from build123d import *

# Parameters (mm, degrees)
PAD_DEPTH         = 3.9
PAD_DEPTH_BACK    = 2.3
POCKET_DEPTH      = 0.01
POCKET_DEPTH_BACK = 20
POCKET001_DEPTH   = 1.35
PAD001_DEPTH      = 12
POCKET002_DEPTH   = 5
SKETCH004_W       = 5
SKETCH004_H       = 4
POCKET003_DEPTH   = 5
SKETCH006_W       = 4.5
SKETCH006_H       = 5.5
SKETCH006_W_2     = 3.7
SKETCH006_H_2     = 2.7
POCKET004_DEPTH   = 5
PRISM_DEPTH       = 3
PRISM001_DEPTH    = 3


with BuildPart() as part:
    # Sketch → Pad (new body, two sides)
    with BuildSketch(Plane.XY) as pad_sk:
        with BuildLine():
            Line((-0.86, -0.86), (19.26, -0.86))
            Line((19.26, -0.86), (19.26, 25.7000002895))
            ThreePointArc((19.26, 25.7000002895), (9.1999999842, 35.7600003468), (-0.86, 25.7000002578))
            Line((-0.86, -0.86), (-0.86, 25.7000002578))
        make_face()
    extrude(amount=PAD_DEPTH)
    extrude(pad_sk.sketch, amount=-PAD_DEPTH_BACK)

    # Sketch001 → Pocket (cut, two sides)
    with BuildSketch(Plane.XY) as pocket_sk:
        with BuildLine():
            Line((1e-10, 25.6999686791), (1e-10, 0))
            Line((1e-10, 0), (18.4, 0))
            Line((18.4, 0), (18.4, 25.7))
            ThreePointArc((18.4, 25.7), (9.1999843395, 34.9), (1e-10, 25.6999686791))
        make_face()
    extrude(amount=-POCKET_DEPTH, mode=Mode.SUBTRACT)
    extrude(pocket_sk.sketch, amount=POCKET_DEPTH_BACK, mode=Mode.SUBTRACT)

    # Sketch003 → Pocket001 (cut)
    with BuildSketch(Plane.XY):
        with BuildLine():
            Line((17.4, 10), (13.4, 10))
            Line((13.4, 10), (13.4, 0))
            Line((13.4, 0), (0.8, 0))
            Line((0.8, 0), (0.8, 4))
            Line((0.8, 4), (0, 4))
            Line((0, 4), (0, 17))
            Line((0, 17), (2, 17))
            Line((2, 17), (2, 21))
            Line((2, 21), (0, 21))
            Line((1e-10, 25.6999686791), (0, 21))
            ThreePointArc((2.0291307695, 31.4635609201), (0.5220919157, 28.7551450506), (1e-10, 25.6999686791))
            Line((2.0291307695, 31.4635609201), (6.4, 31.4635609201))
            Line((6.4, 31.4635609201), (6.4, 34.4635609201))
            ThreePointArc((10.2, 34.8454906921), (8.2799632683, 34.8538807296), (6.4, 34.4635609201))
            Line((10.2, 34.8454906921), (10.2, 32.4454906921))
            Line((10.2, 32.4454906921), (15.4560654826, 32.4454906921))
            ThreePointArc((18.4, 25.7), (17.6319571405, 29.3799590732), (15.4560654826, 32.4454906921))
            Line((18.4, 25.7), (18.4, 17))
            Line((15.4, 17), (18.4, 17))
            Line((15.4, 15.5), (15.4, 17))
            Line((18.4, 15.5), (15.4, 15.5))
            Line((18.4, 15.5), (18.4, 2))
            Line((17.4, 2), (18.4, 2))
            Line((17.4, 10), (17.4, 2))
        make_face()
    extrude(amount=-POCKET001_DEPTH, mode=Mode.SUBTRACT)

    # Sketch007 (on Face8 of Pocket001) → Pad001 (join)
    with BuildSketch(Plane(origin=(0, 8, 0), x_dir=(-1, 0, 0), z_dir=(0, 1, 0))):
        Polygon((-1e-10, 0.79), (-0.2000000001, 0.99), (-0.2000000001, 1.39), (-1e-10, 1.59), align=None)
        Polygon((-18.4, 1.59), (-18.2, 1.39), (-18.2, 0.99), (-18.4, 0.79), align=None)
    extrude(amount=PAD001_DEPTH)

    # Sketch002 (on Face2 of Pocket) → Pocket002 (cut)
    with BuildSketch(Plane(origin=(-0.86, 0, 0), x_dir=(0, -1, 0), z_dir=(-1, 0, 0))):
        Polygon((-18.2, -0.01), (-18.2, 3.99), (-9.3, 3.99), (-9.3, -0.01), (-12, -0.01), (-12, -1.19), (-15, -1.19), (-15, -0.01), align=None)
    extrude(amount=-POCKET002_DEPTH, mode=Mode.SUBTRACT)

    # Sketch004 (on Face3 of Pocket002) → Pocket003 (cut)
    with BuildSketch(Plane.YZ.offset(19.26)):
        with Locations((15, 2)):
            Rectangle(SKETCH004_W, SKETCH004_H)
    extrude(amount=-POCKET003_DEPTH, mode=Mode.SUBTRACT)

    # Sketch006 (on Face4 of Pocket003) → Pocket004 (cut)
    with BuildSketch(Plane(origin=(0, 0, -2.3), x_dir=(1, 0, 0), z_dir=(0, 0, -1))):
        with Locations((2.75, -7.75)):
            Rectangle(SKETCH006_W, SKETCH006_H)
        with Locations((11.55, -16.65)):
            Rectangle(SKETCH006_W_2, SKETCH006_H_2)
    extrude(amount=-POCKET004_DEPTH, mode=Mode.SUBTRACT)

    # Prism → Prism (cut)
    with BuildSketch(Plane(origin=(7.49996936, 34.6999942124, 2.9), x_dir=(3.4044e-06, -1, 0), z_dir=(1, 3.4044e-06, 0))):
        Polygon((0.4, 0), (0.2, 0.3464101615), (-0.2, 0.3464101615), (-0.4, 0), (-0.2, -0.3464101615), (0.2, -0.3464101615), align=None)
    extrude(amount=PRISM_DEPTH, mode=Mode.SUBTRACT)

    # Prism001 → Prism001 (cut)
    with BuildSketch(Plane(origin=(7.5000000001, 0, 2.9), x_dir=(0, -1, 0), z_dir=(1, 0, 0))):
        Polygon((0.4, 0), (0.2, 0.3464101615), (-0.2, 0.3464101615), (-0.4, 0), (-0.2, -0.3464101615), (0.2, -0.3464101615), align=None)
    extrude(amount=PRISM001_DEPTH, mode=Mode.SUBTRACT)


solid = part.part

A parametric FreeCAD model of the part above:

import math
import FreeCAD as App
import Part
import Sketcher

V = App.Vector
Q = App.Units.Quantity

doc = App.newDocument("Part")
body = doc.addObject("PartDesign::Body", "Body")

sketch1 = body.newObject("Sketcher::SketchObject", "Sketch")
sketch1.AttachmentSupport = (doc.getObject("XY_Plane"), [""])
sketch1.MapMode = "FlatFace"
sketch1.addGeometry(Part.LineSegment(V(-0.86, -0.86, 0), V(19.26, -0.86, 0)), False)
sketch1.addGeometry(Part.LineSegment(V(19.26, -0.86, 0), V(19.26, 25.7, 0)), False)
sketch1.addGeometry(Part.ArcOfCircle(Part.Circle(V(9.2, 25.7, 0), V(0, 0, 1), 10.06), math.radians(0), math.radians(180.000001)), False)
sketch1.addGeometry(Part.LineSegment(V(-0.86, 25.7, 0), V(-0.86, -0.86, 0)), False)
sketch1.addConstraint(Sketcher.Constraint("Coincident", 0, 2, 1, 1))
sketch1.addConstraint(Sketcher.Constraint("Tangent", 1, 2, 2, 1))
sketch1.addConstraint(Sketcher.Constraint("Tangent", 2, 2, 3, 1))
sketch1.addConstraint(Sketcher.Constraint("Coincident", 3, 2, 0, 1))
sketch1.addConstraint(Sketcher.Constraint("Horizontal", 0))
sketch1.addConstraint(Sketcher.Constraint("Vertical", 1))
sketch1.addConstraint(Sketcher.Constraint("Vertical", 3))
sketch1.addConstraint(Sketcher.Constraint("Radius", 2, Q("10.06 mm")))
sketch1.addConstraint(Sketcher.Constraint("DistanceY", 1, 1, 1, 2, Q("26.56 mm")))
sketch1.addConstraint(Sketcher.Constraint("DistanceX", -1, 1, 2, 3, Q("9.2 mm")))
sketch1.addConstraint(Sketcher.Constraint("DistanceY", -1, 1, 2, 3, Q("25.7 mm")))
pad1 = body.newObject("PartDesign::Pad", "Pad")
pad1.Profile = sketch1
pad1.Type = "TwoLengths"
pad1.Length = 3.9
pad1.Length2 = 2.3

sketch2 = body.newObject("Sketcher::SketchObject", "Sketch001")
sketch2.AttachmentSupport = (doc.getObject("XY_Plane"), [""])
sketch2.MapMode = "FlatFace"
sketch2.addGeometry(Part.LineSegment(V(0, 25.699969, 0), V(0, 0, 0)), False)
sketch2.addGeometry(Part.LineSegment(V(0, 0, 0), V(18.4, 0, 0)), False)
sketch2.addGeometry(Part.LineSegment(V(18.4, 0, 0), V(18.4, 25.7, 0)), False)
sketch2.addGeometry(Part.ArcOfCircle(Part.Circle(V(9.2, 25.7, 0), V(0, 0, 1), 9.2), math.radians(0), math.radians(180.000195)), False)
sketch2.addConstraint(Sketcher.Constraint("Coincident", 0, 2, 1, 1))
sketch2.addConstraint(Sketcher.Constraint("Coincident", 1, 2, 2, 1))
sketch2.addConstraint(Sketcher.Constraint("Tangent", 2, 2, 3, 1))
sketch2.addConstraint(Sketcher.Constraint("Coincident", 3, 2, 0, 1))
sketch2.addConstraint(Sketcher.Constraint("Vertical", 0))
sketch2.addConstraint(Sketcher.Constraint("Horizontal", 1))
sketch2.addConstraint(Sketcher.Constraint("Vertical", 2))
sketch2.addConstraint(Sketcher.Constraint("Coincident", 0, 2, -1, 1))
sketch2.addConstraint(Sketcher.Constraint("Radius", 3, Q("9.2 mm")))
sketch2.addConstraint(Sketcher.Constraint("DistanceY", 2, 1, 2, 2, Q("25.7 mm")))
sketch2.addConstraint(Sketcher.Constraint("DistanceY", 0, 2, 0, 1, Q("25.699969 mm")))
pocket1 = body.newObject("PartDesign::Pocket", "Pocket")
pocket1.Profile = sketch2
pocket1.Type = "TwoLengths"
pocket1.Length = 0.01
pocket1.Length2 = 20

sketch3 = body.newObject("Sketcher::SketchObject", "Sketch002")
sketch3.AttachmentSupport = (doc.getObject("XY_Plane"), [""])
sketch3.MapMode = "FlatFace"
sketch3.addGeometry(Part.LineSegment(V(13.4, 10, 0), V(17.4, 10, 0)), False)
sketch3.addGeometry(Part.LineSegment(V(17.4, 10, 0), V(17.4, 2, 0)), False)
sketch3.addGeometry(Part.LineSegment(V(17.4, 2, 0), V(18.4, 2, 0)), False)
sketch3.addGeometry(Part.LineSegment(V(18.4, 2, 0), V(18.4, 15.5, 0)), False)
sketch3.addGeometry(Part.LineSegment(V(18.4, 15.5, 0), V(15.4, 15.5, 0)), False)
sketch3.addGeometry(Part.LineSegment(V(15.4, 15.5, 0), V(15.4, 17, 0)), False)
sketch3.addGeometry(Part.LineSegment(V(15.4, 17, 0), V(18.4, 17, 0)), False)
sketch3.addGeometry(Part.LineSegment(V(18.4, 17, 0), V(18.4, 25.7, 0)), False)
sketch3.addGeometry(Part.ArcOfCircle(Part.Circle(V(9.2, 25.7, 0), V(0, 0, 1), 9.2), math.radians(0), math.radians(47.155801)), False)
sketch3.addGeometry(Part.LineSegment(V(15.456065, 32.445491, 0), V(10.2, 32.445491, 0)), False)
sketch3.addGeometry(Part.LineSegment(V(10.2, 32.445491, 0), V(10.2, 34.845491, 0)), False)
sketch3.addGeometry(Part.ArcOfCircle(Part.Circle(V(9.2, 25.7, 0), V(0, 0, 1), 9.2), math.radians(83.759869), math.radians(107.718932)), False)
sketch3.addGeometry(Part.LineSegment(V(6.4, 34.463561, 0), V(6.4, 31.463561, 0)), False)
sketch3.addGeometry(Part.LineSegment(V(6.4, 31.463561, 0), V(2.029131, 31.463561, 0)), False)
sketch3.addGeometry(Part.ArcOfCircle(Part.Circle(V(9.2, 25.7, 0), V(0, 0, 1), 9.2), math.radians(141.209542), math.radians(180.000195)), False)
sketch3.addGeometry(Part.LineSegment(V(0, 25.699969, 0), V(0, 21, 0)), False)
sketch3.addGeometry(Part.LineSegment(V(0, 21, 0), V(2, 21, 0)), False)
sketch3.addGeometry(Part.LineSegment(V(2, 21, 0), V(2, 17, 0)), False)
sketch3.addGeometry(Part.LineSegment(V(2, 17, 0), V(0, 17, 0)), False)
sketch3.addGeometry(Part.LineSegment(V(0, 17, 0), V(0, 4, 0)), False)
sketch3.addGeometry(Part.LineSegment(V(0, 4, 0), V(0.8, 4, 0)), False)
sketch3.addGeometry(Part.LineSegment(V(0.8, 4, 0), V(0.8, 0, 0)), False)
sketch3.addGeometry(Part.LineSegment(V(0.8, 0, 0), V(13.4, 0, 0)), False)
sketch3.addGeometry(Part.LineSegment(V(13.4, 0, 0), V(13.4, 10, 0)), False)
sketch3.addConstraint(Sketcher.Constraint("Coincident", 0, 2, 1, 1))
sketch3.addConstraint(Sketcher.Constraint("Coincident", 1, 2, 2, 1))
sketch3.addConstraint(Sketcher.Constraint("Coincident", 2, 2, 3, 1))
sketch3.addConstraint(Sketcher.Constraint("Coincident", 3, 2, 4, 1))
sketch3.addConstraint(Sketcher.Constraint("Coincident", 4, 2, 5, 1))
sketch3.addConstraint(Sketcher.Constraint("Coincident", 5, 2, 6, 1))
sketch3.addConstraint(Sketcher.Constraint("Coincident", 6, 2, 7, 1))
sketch3.addConstraint(Sketcher.Constraint("Tangent", 7, 2, 8, 1))
sketch3.addConstraint(Sketcher.Constraint("Coincident", 8, 2, 9, 1))
sketch3.addConstraint(Sketcher.Constraint("Coincident", 9, 2, 10, 1))
sketch3.addConstraint(Sketcher.Constraint("Coincident", 10, 2, 11, 1))
sketch3.addConstraint(Sketcher.Constraint("Coincident", 11, 2, 12, 1))
sketch3.addConstraint(Sketcher.Constraint("Coincident", 12, 2, 13, 1))
sketch3.addConstraint(Sketcher.Constraint("Coincident", 13, 2, 14, 1))
sketch3.addConstraint(Sketcher.Constraint("Coincident", 14, 2, 15, 1))
sketch3.addConstraint(Sketcher.Constraint("Coincident", 15, 2, 16, 1))
sketch3.addConstraint(Sketcher.Constraint("Coincident", 16, 2, 17, 1))
sketch3.addConstraint(Sketcher.Constraint("Coincident", 17, 2, 18, 1))
sketch3.addConstraint(Sketcher.Constraint("Coincident", 18, 2, 19, 1))
sketch3.addConstraint(Sketcher.Constraint("Coincident", 19, 2, 20, 1))
sketch3.addConstraint(Sketcher.Constraint("Coincident", 20, 2, 21, 1))
sketch3.addConstraint(Sketcher.Constraint("Coincident", 21, 2, 22, 1))
sketch3.addConstraint(Sketcher.Constraint("Coincident", 22, 2, 23, 1))
sketch3.addConstraint(Sketcher.Constraint("Coincident", 23, 2, 0, 1))
sketch3.addConstraint(Sketcher.Constraint("Horizontal", 0))
sketch3.addConstraint(Sketcher.Constraint("Vertical", 1))
sketch3.addConstraint(Sketcher.Constraint("Horizontal", 2))
sketch3.addConstraint(Sketcher.Constraint("Vertical", 3))
sketch3.addConstraint(Sketcher.Constraint("Horizontal", 4))
sketch3.addConstraint(Sketcher.Constraint("Vertical", 5))
sketch3.addConstraint(Sketcher.Constraint("Horizontal", 6))
sketch3.addConstraint(Sketcher.Constraint("Vertical", 7))
sketch3.addConstraint(Sketcher.Constraint("Horizontal", 9))
sketch3.addConstraint(Sketcher.Constraint("Vertical", 10))
sketch3.addConstraint(Sketcher.Constraint("Vertical", 12))
sketch3.addConstraint(Sketcher.Constraint("Horizontal", 13))
sketch3.addConstraint(Sketcher.Constraint("Vertical", 15))
sketch3.addConstraint(Sketcher.Constraint("Horizontal", 16))
sketch3.addConstraint(Sketcher.Constraint("Vertical", 17))
sketch3.addConstraint(Sketcher.Constraint("Horizontal", 18))
sketch3.addConstraint(Sketcher.Constraint("Vertical", 19))
sketch3.addConstraint(Sketcher.Constraint("Horizontal", 20))
sketch3.addConstraint(Sketcher.Constraint("Vertical", 21))
sketch3.addConstraint(Sketcher.Constraint("Horizontal", 22))
sketch3.addConstraint(Sketcher.Constraint("Vertical", 23))
sketch3.addConstraint(Sketcher.Constraint("Coincident", 11, 3, 8, 3))
sketch3.addConstraint(Sketcher.Constraint("Coincident", 14, 3, 8, 3))
sketch3.addConstraint(Sketcher.Constraint("Equal", 8, 11))
sketch3.addConstraint(Sketcher.Constraint("Equal", 11, 14))
sketch3.addConstraint(Sketcher.Constraint("PointOnObject", 14, 2, -2))
sketch3.addConstraint(Sketcher.Constraint("PointOnObject", 18, 2, -2))
sketch3.addConstraint(Sketcher.Constraint("PointOnObject", 21, 2, -1))
sketch3.addConstraint(Sketcher.Constraint("Horizontal", 6, 2, 17, 2))
sketch3.addConstraint(Sketcher.Constraint("Vertical", 3, 2, 6, 2))
sketch3.addConstraint(Sketcher.Constraint("Equal", 6, 12))
sketch3.addConstraint(Sketcher.Constraint("Equal", 0, 17))
sketch3.addConstraint(Sketcher.Constraint("Equal", 17, 21))
sketch3.addConstraint(Sketcher.Constraint("Radius", 8, Q("9.2 mm")))
sketch3.addConstraint(Sketcher.Constraint("DistanceX", 0, 1, 0, 2, Q("4 mm")))
sketch3.addConstraint(Sketcher.Constraint("DistanceX", 2, 1, 2, 2, Q("1 mm")))
sketch3.addConstraint(Sketcher.Constraint("DistanceX", 4, 2, 4, 1, Q("3 mm")))
sketch3.addConstraint(Sketcher.Constraint("DistanceX", 16, 1, 16, 2, Q("2 mm")))
sketch3.addConstraint(Sketcher.Constraint("DistanceY", 1, 2, 1, 1, Q("8 mm")))
sketch3.addConstraint(Sketcher.Constraint("DistanceY", 19, 2, 19, 1, Q("13 mm")))
sketch3.addConstraint(Sketcher.Constraint("DistanceY", 23, 1, 23, 2, Q("10 mm")))
sketch3.addConstraint(Sketcher.Constraint("DistanceX", 20, 1, 20, 2, Q("0.8 mm")))
sketch3.addConstraint(Sketcher.Constraint("DistanceY", 3, 1, 3, 2, Q("13.5 mm")))
sketch3.addConstraint(Sketcher.Constraint("DistanceY", 7, 1, 7, 2, Q("8.7 mm")))
sketch3.addConstraint(Sketcher.Constraint("DistanceY", 10, 1, 10, 2, Q("2.4 mm")))
sketch3.addConstraint(Sketcher.Constraint("DistanceX", 8, 3, 9, 2, Q("1 mm")))
sketch3.addConstraint(Sketcher.Constraint("DistanceX", -1, 1, 11, 2, Q("6.4 mm")))
sketch3.addConstraint(Sketcher.Constraint("DistanceY", 15, 2, 15, 1, Q("4.699969 mm")))
pocket2 = body.newObject("PartDesign::Pocket", "Pocket001")
pocket2.Profile = sketch3
pocket2.Length = 1.35

sketch4 = body.newObject("Sketcher::SketchObject", "Sketch003")
sketch4.AttachmentSupport = (doc.getObject("XZ_Plane"), [""])
sketch4.MapMode = "FlatFace"
sketch4.AttachmentOffset = App.Placement(V(0, 0, -8), App.Rotation())
sketch4.addGeometry(Part.LineSegment(V(0.2, 0.99, 0), V(0, 0.79, 0)), False)
sketch4.addGeometry(Part.LineSegment(V(0, 0.79, 0), V(0, 1.59, 0)), False)
sketch4.addGeometry(Part.LineSegment(V(0, 1.59, 0), V(0.2, 1.39, 0)), False)
sketch4.addGeometry(Part.LineSegment(V(0.2, 1.39, 0), V(0.2, 0.99, 0)), False)
sketch4.addGeometry(Part.LineSegment(V(18.2, 1.39, 0), V(18.4, 1.59, 0)), False)
sketch4.addGeometry(Part.LineSegment(V(18.4, 1.59, 0), V(18.4, 0.79, 0)), False)
sketch4.addGeometry(Part.LineSegment(V(18.4, 0.79, 0), V(18.2, 0.99, 0)), False)
sketch4.addGeometry(Part.LineSegment(V(18.2, 0.99, 0), V(18.2, 1.39, 0)), False)
sketch4.addConstraint(Sketcher.Constraint("Coincident", 0, 2, 1, 1))
sketch4.addConstraint(Sketcher.Constraint("Coincident", 1, 2, 2, 1))
sketch4.addConstraint(Sketcher.Constraint("Coincident", 2, 2, 3, 1))
sketch4.addConstraint(Sketcher.Constraint("Coincident", 3, 2, 0, 1))
sketch4.addConstraint(Sketcher.Constraint("Coincident", 4, 2, 5, 1))
sketch4.addConstraint(Sketcher.Constraint("Coincident", 5, 2, 6, 1))
sketch4.addConstraint(Sketcher.Constraint("Coincident", 6, 2, 7, 1))
sketch4.addConstraint(Sketcher.Constraint("Coincident", 7, 2, 4, 1))
sketch4.addConstraint(Sketcher.Constraint("Vertical", 1))
sketch4.addConstraint(Sketcher.Constraint("Vertical", 3))
sketch4.addConstraint(Sketcher.Constraint("Vertical", 5))
sketch4.addConstraint(Sketcher.Constraint("Vertical", 7))
sketch4.addConstraint(Sketcher.Constraint("PointOnObject", 0, 2, -2))
sketch4.addConstraint(Sketcher.Constraint("Perpendicular", 0, 2))
sketch4.addConstraint(Sketcher.Constraint("Perpendicular", 2, 4))
sketch4.addConstraint(Sketcher.Constraint("Perpendicular", 4, 6))
sketch4.addConstraint(Sketcher.Constraint("Horizontal", 1, 2, 4, 2))
sketch4.addConstraint(Sketcher.Constraint("Horizontal", 0, 2, 5, 2))
sketch4.addConstraint(Sketcher.Constraint("Horizontal", 3, 2, 6, 2))
sketch4.addConstraint(Sketcher.Constraint("Horizontal", 2, 2, 7, 2))
sketch4.addConstraint(Sketcher.Constraint("DistanceY", 1, 1, 1, 2, Q("0.8 mm")))
sketch4.addConstraint(Sketcher.Constraint("DistanceY", 3, 2, 3, 1, Q("0.4 mm")))
sketch4.addConstraint(Sketcher.Constraint("DistanceX", 3, 2, 6, 2, Q("18 mm")))
sketch4.addConstraint(Sketcher.Constraint("DistanceY", -1, 1, 0, 2, Q("0.79 mm")))
pad2 = body.newObject("PartDesign::Pad", "Pad001")
pad2.Profile = sketch4
pad2.Length = 12
pad2.Reversed = True

sketch5 = body.newObject("Sketcher::SketchObject", "Sketch004")
sketch5.AttachmentSupport = (doc.getObject("YZ_Plane"), [""])
sketch5.MapMode = "FlatFace"
sketch5.AttachmentOffset = App.Placement(V(0, 0, -0.86), App.Rotation())
sketch5.addGeometry(Part.LineSegment(V(18.2, 3.99, 0), V(18.2, -0.01, 0)), False)
sketch5.addGeometry(Part.LineSegment(V(18.2, -0.01, 0), V(15, -0.01, 0)), False)
sketch5.addGeometry(Part.LineSegment(V(15, -0.01, 0), V(15, -1.19, 0)), False)
sketch5.addGeometry(Part.LineSegment(V(15, -1.19, 0), V(12, -1.19, 0)), False)
sketch5.addGeometry(Part.LineSegment(V(12, -1.19, 0), V(12, -0.01, 0)), False)
sketch5.addGeometry(Part.LineSegment(V(12, -0.01, 0), V(9.3, -0.01, 0)), False)
sketch5.addGeometry(Part.LineSegment(V(9.3, -0.01, 0), V(9.3, 3.99, 0)), False)
sketch5.addGeometry(Part.LineSegment(V(9.3, 3.99, 0), V(18.2, 3.99, 0)), False)
sketch5.addConstraint(Sketcher.Constraint("Coincident", 0, 2, 1, 1))
sketch5.addConstraint(Sketcher.Constraint("Coincident", 1, 2, 2, 1))
sketch5.addConstraint(Sketcher.Constraint("Coincident", 2, 2, 3, 1))
sketch5.addConstraint(Sketcher.Constraint("Coincident", 3, 2, 4, 1))
sketch5.addConstraint(Sketcher.Constraint("Coincident", 4, 2, 5, 1))
sketch5.addConstraint(Sketcher.Constraint("Coincident", 5, 2, 6, 1))
sketch5.addConstraint(Sketcher.Constraint("Coincident", 6, 2, 7, 1))
sketch5.addConstraint(Sketcher.Constraint("Coincident", 7, 2, 0, 1))
sketch5.addConstraint(Sketcher.Constraint("Vertical", 0))
sketch5.addConstraint(Sketcher.Constraint("Horizontal", 1))
sketch5.addConstraint(Sketcher.Constraint("Vertical", 2))
sketch5.addConstraint(Sketcher.Constraint("Horizontal", 3))
sketch5.addConstraint(Sketcher.Constraint("Vertical", 4))
sketch5.addConstraint(Sketcher.Constraint("Horizontal", 5))
sketch5.addConstraint(Sketcher.Constraint("Vertical", 6))
sketch5.addConstraint(Sketcher.Constraint("Horizontal", 7))
sketch5.addConstraint(Sketcher.Constraint("Horizontal", 1, 2, 4, 2))
sketch5.addConstraint(Sketcher.Constraint("DistanceX", 3, 2, 3, 1, Q("3 mm")))
sketch5.addConstraint(Sketcher.Constraint("DistanceY", 0, 2, 0, 1, Q("4 mm")))
sketch5.addConstraint(Sketcher.Constraint("DistanceX", 1, 2, 1, 1, Q("3.2 mm")))
sketch5.addConstraint(Sketcher.Constraint("DistanceX", 5, 2, 5, 1, Q("2.7 mm")))
sketch5.addConstraint(Sketcher.Constraint("DistanceX", -1, 1, 1, 2, Q("15 mm")))
sketch5.addConstraint(Sketcher.Constraint("DistanceY", 2, 2, 2, 1, Q("1.18 mm")))
sketch5.addConstraint(Sketcher.Constraint("DistanceY", 0, 2, -1, 1, Q("0.01 mm")))
pocket3 = body.newObject("PartDesign::Pocket", "Pocket002")
pocket3.Profile = sketch5
pocket3.Length = 5
pocket3.Reversed = True

sketch6 = body.newObject("Sketcher::SketchObject", "Sketch005")
sketch6.AttachmentSupport = (doc.getObject("YZ_Plane"), [""])
sketch6.MapMode = "FlatFace"
sketch6.AttachmentOffset = App.Placement(V(0, 0, 19.26), App.Rotation())
sketch6.addGeometry(Part.LineSegment(V(12.5, 4, 0), V(12.5, 0, 0)), False)
sketch6.addGeometry(Part.LineSegment(V(12.5, 0, 0), V(17.5, 0, 0)), False)
sketch6.addGeometry(Part.LineSegment(V(17.5, 0, 0), V(17.5, 4, 0)), False)
sketch6.addGeometry(Part.LineSegment(V(17.5, 4, 0), V(12.5, 4, 0)), False)
sketch6.addConstraint(Sketcher.Constraint("Coincident", 0, 2, 1, 1))
sketch6.addConstraint(Sketcher.Constraint("Coincident", 1, 2, 2, 1))
sketch6.addConstraint(Sketcher.Constraint("Coincident", 2, 2, 3, 1))
sketch6.addConstraint(Sketcher.Constraint("Coincident", 3, 2, 0, 1))
sketch6.addConstraint(Sketcher.Constraint("Vertical", 0))
sketch6.addConstraint(Sketcher.Constraint("Horizontal", 1))
sketch6.addConstraint(Sketcher.Constraint("Vertical", 2))
sketch6.addConstraint(Sketcher.Constraint("Horizontal", 3))
sketch6.addConstraint(Sketcher.Constraint("PointOnObject", 0, 2, -1))
sketch6.addConstraint(Sketcher.Constraint("DistanceX", 1, 1, 1, 2, Q("5 mm")))
sketch6.addConstraint(Sketcher.Constraint("DistanceY", 0, 2, 0, 1, Q("4 mm")))
sketch6.addConstraint(Sketcher.Constraint("DistanceX", -1, 1, 0, 2, Q("12.5 mm")))
pocket4 = body.newObject("PartDesign::Pocket", "Pocket003")
pocket4.Profile = sketch6
pocket4.Length = 5

sketch7 = body.newObject("Sketcher::SketchObject", "Sketch006")
sketch7.AttachmentSupport = (doc.getObject("XY_Plane"), [""])
sketch7.MapMode = "FlatFace"
sketch7.AttachmentOffset = App.Placement(V(0, 0, -2.3), App.Rotation())
sketch7.addGeometry(Part.LineSegment(V(0.5, 5, 0), V(0.5, 10.5, 0)), False)
sketch7.addGeometry(Part.LineSegment(V(0.5, 10.5, 0), V(5, 10.5, 0)), False)
sketch7.addGeometry(Part.LineSegment(V(5, 10.5, 0), V(5, 5, 0)), False)
sketch7.addGeometry(Part.LineSegment(V(5, 5, 0), V(0.5, 5, 0)), False)
sketch7.addGeometry(Part.LineSegment(V(9.7, 15.3, 0), V(9.7, 18, 0)), False)
sketch7.addGeometry(Part.LineSegment(V(9.7, 18, 0), V(13.4, 18, 0)), False)
sketch7.addGeometry(Part.LineSegment(V(13.4, 18, 0), V(13.4, 15.3, 0)), False)
sketch7.addGeometry(Part.LineSegment(V(13.4, 15.3, 0), V(9.7, 15.3, 0)), False)
sketch7.addConstraint(Sketcher.Constraint("Coincident", 0, 2, 1, 1))
sketch7.addConstraint(Sketcher.Constraint("Coincident", 1, 2, 2, 1))
sketch7.addConstraint(Sketcher.Constraint("Coincident", 2, 2, 3, 1))
sketch7.addConstraint(Sketcher.Constraint("Coincident", 3, 2, 0, 1))
sketch7.addConstraint(Sketcher.Constraint("Coincident", 4, 2, 5, 1))
sketch7.addConstraint(Sketcher.Constraint("Coincident", 5, 2, 6, 1))
sketch7.addConstraint(Sketcher.Constraint("Coincident", 6, 2, 7, 1))
sketch7.addConstraint(Sketcher.Constraint("Coincident", 7, 2, 4, 1))
sketch7.addConstraint(Sketcher.Constraint("Vertical", 0))
sketch7.addConstraint(Sketcher.Constraint("Horizontal", 1))
sketch7.addConstraint(Sketcher.Constraint("Vertical", 2))
sketch7.addConstraint(Sketcher.Constraint("Horizontal", 3))
sketch7.addConstraint(Sketcher.Constraint("Vertical", 4))
sketch7.addConstraint(Sketcher.Constraint("Horizontal", 5))
sketch7.addConstraint(Sketcher.Constraint("Vertical", 6))
sketch7.addConstraint(Sketcher.Constraint("Horizontal", 7))
sketch7.addConstraint(Sketcher.Constraint("DistanceX", 1, 1, 1, 2, Q("4.5 mm")))
sketch7.addConstraint(Sketcher.Constraint("DistanceX", 5, 1, 5, 2, Q("3.7 mm")))
sketch7.addConstraint(Sketcher.Constraint("DistanceY", 0, 1, 0, 2, Q("5.5 mm")))
sketch7.addConstraint(Sketcher.Constraint("DistanceY", 4, 1, 4, 2, Q("2.7 mm")))
sketch7.addConstraint(Sketcher.Constraint("DistanceX", -1, 1, 1, 2, Q("5 mm")))
sketch7.addConstraint(Sketcher.Constraint("DistanceY", -1, 1, 2, 2, Q("5 mm")))
sketch7.addConstraint(Sketcher.Constraint("DistanceY", -1, 1, 4, 2, Q("18 mm")))
sketch7.addConstraint(Sketcher.Constraint("DistanceX", -1, 1, 4, 2, Q("9.7 mm")))
pocket5 = body.newObject("PartDesign::Pocket", "Pocket004")
pocket5.Profile = sketch7
pocket5.Length = 5
pocket5.Reversed = True

sketch8 = body.newObject("Sketcher::SketchObject", "Sketch007")
sketch8.AttachmentSupport = (doc.getObject("YZ_Plane"), [""])
sketch8.MapMode = "FlatFace"
sketch8.AttachmentOffset = App.Placement(V(0, 0, 7.499969), App.Rotation())
sketch8.addGeometry(Part.LineSegment(V(34.299994, 2.9, 0), V(34.499994, 2.55359, 0)), False)
sketch8.addGeometry(Part.LineSegment(V(34.499994, 2.55359, 0), V(34.899994, 2.55359, 0)), False)
sketch8.addGeometry(Part.LineSegment(V(34.899994, 2.55359, 0), V(35.099994, 2.9, 0)), False)
sketch8.addGeometry(Part.LineSegment(V(35.099994, 2.9, 0), V(34.899994, 3.24641, 0)), False)
sketch8.addGeometry(Part.LineSegment(V(34.899994, 3.24641, 0), V(34.499994, 3.24641, 0)), False)
sketch8.addGeometry(Part.LineSegment(V(34.499994, 3.24641, 0), V(34.299994, 2.9, 0)), False)
sketch8.addConstraint(Sketcher.Constraint("Coincident", 0, 2, 1, 1))
sketch8.addConstraint(Sketcher.Constraint("Coincident", 1, 2, 2, 1))
sketch8.addConstraint(Sketcher.Constraint("Coincident", 2, 2, 3, 1))
sketch8.addConstraint(Sketcher.Constraint("Coincident", 3, 2, 4, 1))
sketch8.addConstraint(Sketcher.Constraint("Coincident", 4, 2, 5, 1))
sketch8.addConstraint(Sketcher.Constraint("Coincident", 5, 2, 0, 1))
sketch8.addConstraint(Sketcher.Constraint("Horizontal", 1))
sketch8.addConstraint(Sketcher.Constraint("Horizontal", 4))
sketch8.addConstraint(Sketcher.Constraint("Parallel", 0, 3))
sketch8.addConstraint(Sketcher.Constraint("Parallel", 2, 5))
sketch8.addConstraint(Sketcher.Constraint("Horizontal", 2, 2, 5, 2))
sketch8.addConstraint(Sketcher.Constraint("Vertical", 1, 2, 3, 2))
sketch8.addConstraint(Sketcher.Constraint("Vertical", 0, 2, 4, 2))
sketch8.addConstraint(Sketcher.Constraint("Angle", 0, Q("-60 deg")))
sketch8.addConstraint(Sketcher.Constraint("DistanceX", 1, 1, 1, 2, Q("0.4 mm")))
sketch8.addConstraint(Sketcher.Constraint("Distance", 0, Q("0.4 mm")))
sketch8.addConstraint(Sketcher.Constraint("DistanceY", -1, 1, 2, 2, Q("2.9 mm")))
sketch8.addConstraint(Sketcher.Constraint("DistanceX", -1, 1, 0, 2, Q("34.499994 mm")))
pocket6 = body.newObject("PartDesign::Pocket", "Pocket005")
pocket6.Profile = sketch8
pocket6.Length = 3
pocket6.Reversed = True

sketch9 = body.newObject("Sketcher::SketchObject", "Sketch008")
sketch9.AttachmentSupport = (doc.getObject("YZ_Plane"), [""])
sketch9.MapMode = "FlatFace"
sketch9.AttachmentOffset = App.Placement(V(0, 0, 7.5), App.Rotation())
sketch9.addGeometry(Part.LineSegment(V(-0.4, 2.9, 0), V(-0.2, 2.55359, 0)), False)
sketch9.addGeometry(Part.LineSegment(V(-0.2, 2.55359, 0), V(0.2, 2.55359, 0)), False)
sketch9.addGeometry(Part.LineSegment(V(0.2, 2.55359, 0), V(0.4, 2.9, 0)), False)
sketch9.addGeometry(Part.LineSegment(V(0.4, 2.9, 0), V(0.2, 3.24641, 0)), False)
sketch9.addGeometry(Part.LineSegment(V(0.2, 3.24641, 0), V(-0.2, 3.24641, 0)), False)
sketch9.addGeometry(Part.LineSegment(V(-0.2, 3.24641, 0), V(-0.4, 2.9, 0)), False)
sketch9.addConstraint(Sketcher.Constraint("Coincident", 0, 2, 1, 1))
sketch9.addConstraint(Sketcher.Constraint("Coincident", 1, 2, 2, 1))
sketch9.addConstraint(Sketcher.Constraint("Coincident", 2, 2, 3, 1))
sketch9.addConstraint(Sketcher.Constraint("Coincident", 3, 2, 4, 1))
sketch9.addConstraint(Sketcher.Constraint("Coincident", 4, 2, 5, 1))
sketch9.addConstraint(Sketcher.Constraint("Coincident", 5, 2, 0, 1))
sketch9.addConstraint(Sketcher.Constraint("Horizontal", 1))
sketch9.addConstraint(Sketcher.Constraint("Horizontal", 4))
sketch9.addConstraint(Sketcher.Constraint("Symmetric", 2, 2, 5, 2, -2))
sketch9.addConstraint(Sketcher.Constraint("Parallel", 0, 3))
sketch9.addConstraint(Sketcher.Constraint("Parallel", 2, 5))
sketch9.addConstraint(Sketcher.Constraint("Vertical", 1, 2, 3, 2))
sketch9.addConstraint(Sketcher.Constraint("Vertical", 0, 2, 4, 2))
sketch9.addConstraint(Sketcher.Constraint("Angle", 0, Q("-60 deg")))
sketch9.addConstraint(Sketcher.Constraint("DistanceX", 1, 1, 1, 2, Q("0.4 mm")))
sketch9.addConstraint(Sketcher.Constraint("Distance", 0, Q("0.4 mm")))
sketch9.addConstraint(Sketcher.Constraint("DistanceY", -1, 1, 2, 2, Q("2.9 mm")))
pocket7 = body.newObject("PartDesign::Pocket", "Pocket006")
pocket7.Profile = sketch9
pocket7.Length = 3
pocket7.Reversed = True

doc.recompute()
